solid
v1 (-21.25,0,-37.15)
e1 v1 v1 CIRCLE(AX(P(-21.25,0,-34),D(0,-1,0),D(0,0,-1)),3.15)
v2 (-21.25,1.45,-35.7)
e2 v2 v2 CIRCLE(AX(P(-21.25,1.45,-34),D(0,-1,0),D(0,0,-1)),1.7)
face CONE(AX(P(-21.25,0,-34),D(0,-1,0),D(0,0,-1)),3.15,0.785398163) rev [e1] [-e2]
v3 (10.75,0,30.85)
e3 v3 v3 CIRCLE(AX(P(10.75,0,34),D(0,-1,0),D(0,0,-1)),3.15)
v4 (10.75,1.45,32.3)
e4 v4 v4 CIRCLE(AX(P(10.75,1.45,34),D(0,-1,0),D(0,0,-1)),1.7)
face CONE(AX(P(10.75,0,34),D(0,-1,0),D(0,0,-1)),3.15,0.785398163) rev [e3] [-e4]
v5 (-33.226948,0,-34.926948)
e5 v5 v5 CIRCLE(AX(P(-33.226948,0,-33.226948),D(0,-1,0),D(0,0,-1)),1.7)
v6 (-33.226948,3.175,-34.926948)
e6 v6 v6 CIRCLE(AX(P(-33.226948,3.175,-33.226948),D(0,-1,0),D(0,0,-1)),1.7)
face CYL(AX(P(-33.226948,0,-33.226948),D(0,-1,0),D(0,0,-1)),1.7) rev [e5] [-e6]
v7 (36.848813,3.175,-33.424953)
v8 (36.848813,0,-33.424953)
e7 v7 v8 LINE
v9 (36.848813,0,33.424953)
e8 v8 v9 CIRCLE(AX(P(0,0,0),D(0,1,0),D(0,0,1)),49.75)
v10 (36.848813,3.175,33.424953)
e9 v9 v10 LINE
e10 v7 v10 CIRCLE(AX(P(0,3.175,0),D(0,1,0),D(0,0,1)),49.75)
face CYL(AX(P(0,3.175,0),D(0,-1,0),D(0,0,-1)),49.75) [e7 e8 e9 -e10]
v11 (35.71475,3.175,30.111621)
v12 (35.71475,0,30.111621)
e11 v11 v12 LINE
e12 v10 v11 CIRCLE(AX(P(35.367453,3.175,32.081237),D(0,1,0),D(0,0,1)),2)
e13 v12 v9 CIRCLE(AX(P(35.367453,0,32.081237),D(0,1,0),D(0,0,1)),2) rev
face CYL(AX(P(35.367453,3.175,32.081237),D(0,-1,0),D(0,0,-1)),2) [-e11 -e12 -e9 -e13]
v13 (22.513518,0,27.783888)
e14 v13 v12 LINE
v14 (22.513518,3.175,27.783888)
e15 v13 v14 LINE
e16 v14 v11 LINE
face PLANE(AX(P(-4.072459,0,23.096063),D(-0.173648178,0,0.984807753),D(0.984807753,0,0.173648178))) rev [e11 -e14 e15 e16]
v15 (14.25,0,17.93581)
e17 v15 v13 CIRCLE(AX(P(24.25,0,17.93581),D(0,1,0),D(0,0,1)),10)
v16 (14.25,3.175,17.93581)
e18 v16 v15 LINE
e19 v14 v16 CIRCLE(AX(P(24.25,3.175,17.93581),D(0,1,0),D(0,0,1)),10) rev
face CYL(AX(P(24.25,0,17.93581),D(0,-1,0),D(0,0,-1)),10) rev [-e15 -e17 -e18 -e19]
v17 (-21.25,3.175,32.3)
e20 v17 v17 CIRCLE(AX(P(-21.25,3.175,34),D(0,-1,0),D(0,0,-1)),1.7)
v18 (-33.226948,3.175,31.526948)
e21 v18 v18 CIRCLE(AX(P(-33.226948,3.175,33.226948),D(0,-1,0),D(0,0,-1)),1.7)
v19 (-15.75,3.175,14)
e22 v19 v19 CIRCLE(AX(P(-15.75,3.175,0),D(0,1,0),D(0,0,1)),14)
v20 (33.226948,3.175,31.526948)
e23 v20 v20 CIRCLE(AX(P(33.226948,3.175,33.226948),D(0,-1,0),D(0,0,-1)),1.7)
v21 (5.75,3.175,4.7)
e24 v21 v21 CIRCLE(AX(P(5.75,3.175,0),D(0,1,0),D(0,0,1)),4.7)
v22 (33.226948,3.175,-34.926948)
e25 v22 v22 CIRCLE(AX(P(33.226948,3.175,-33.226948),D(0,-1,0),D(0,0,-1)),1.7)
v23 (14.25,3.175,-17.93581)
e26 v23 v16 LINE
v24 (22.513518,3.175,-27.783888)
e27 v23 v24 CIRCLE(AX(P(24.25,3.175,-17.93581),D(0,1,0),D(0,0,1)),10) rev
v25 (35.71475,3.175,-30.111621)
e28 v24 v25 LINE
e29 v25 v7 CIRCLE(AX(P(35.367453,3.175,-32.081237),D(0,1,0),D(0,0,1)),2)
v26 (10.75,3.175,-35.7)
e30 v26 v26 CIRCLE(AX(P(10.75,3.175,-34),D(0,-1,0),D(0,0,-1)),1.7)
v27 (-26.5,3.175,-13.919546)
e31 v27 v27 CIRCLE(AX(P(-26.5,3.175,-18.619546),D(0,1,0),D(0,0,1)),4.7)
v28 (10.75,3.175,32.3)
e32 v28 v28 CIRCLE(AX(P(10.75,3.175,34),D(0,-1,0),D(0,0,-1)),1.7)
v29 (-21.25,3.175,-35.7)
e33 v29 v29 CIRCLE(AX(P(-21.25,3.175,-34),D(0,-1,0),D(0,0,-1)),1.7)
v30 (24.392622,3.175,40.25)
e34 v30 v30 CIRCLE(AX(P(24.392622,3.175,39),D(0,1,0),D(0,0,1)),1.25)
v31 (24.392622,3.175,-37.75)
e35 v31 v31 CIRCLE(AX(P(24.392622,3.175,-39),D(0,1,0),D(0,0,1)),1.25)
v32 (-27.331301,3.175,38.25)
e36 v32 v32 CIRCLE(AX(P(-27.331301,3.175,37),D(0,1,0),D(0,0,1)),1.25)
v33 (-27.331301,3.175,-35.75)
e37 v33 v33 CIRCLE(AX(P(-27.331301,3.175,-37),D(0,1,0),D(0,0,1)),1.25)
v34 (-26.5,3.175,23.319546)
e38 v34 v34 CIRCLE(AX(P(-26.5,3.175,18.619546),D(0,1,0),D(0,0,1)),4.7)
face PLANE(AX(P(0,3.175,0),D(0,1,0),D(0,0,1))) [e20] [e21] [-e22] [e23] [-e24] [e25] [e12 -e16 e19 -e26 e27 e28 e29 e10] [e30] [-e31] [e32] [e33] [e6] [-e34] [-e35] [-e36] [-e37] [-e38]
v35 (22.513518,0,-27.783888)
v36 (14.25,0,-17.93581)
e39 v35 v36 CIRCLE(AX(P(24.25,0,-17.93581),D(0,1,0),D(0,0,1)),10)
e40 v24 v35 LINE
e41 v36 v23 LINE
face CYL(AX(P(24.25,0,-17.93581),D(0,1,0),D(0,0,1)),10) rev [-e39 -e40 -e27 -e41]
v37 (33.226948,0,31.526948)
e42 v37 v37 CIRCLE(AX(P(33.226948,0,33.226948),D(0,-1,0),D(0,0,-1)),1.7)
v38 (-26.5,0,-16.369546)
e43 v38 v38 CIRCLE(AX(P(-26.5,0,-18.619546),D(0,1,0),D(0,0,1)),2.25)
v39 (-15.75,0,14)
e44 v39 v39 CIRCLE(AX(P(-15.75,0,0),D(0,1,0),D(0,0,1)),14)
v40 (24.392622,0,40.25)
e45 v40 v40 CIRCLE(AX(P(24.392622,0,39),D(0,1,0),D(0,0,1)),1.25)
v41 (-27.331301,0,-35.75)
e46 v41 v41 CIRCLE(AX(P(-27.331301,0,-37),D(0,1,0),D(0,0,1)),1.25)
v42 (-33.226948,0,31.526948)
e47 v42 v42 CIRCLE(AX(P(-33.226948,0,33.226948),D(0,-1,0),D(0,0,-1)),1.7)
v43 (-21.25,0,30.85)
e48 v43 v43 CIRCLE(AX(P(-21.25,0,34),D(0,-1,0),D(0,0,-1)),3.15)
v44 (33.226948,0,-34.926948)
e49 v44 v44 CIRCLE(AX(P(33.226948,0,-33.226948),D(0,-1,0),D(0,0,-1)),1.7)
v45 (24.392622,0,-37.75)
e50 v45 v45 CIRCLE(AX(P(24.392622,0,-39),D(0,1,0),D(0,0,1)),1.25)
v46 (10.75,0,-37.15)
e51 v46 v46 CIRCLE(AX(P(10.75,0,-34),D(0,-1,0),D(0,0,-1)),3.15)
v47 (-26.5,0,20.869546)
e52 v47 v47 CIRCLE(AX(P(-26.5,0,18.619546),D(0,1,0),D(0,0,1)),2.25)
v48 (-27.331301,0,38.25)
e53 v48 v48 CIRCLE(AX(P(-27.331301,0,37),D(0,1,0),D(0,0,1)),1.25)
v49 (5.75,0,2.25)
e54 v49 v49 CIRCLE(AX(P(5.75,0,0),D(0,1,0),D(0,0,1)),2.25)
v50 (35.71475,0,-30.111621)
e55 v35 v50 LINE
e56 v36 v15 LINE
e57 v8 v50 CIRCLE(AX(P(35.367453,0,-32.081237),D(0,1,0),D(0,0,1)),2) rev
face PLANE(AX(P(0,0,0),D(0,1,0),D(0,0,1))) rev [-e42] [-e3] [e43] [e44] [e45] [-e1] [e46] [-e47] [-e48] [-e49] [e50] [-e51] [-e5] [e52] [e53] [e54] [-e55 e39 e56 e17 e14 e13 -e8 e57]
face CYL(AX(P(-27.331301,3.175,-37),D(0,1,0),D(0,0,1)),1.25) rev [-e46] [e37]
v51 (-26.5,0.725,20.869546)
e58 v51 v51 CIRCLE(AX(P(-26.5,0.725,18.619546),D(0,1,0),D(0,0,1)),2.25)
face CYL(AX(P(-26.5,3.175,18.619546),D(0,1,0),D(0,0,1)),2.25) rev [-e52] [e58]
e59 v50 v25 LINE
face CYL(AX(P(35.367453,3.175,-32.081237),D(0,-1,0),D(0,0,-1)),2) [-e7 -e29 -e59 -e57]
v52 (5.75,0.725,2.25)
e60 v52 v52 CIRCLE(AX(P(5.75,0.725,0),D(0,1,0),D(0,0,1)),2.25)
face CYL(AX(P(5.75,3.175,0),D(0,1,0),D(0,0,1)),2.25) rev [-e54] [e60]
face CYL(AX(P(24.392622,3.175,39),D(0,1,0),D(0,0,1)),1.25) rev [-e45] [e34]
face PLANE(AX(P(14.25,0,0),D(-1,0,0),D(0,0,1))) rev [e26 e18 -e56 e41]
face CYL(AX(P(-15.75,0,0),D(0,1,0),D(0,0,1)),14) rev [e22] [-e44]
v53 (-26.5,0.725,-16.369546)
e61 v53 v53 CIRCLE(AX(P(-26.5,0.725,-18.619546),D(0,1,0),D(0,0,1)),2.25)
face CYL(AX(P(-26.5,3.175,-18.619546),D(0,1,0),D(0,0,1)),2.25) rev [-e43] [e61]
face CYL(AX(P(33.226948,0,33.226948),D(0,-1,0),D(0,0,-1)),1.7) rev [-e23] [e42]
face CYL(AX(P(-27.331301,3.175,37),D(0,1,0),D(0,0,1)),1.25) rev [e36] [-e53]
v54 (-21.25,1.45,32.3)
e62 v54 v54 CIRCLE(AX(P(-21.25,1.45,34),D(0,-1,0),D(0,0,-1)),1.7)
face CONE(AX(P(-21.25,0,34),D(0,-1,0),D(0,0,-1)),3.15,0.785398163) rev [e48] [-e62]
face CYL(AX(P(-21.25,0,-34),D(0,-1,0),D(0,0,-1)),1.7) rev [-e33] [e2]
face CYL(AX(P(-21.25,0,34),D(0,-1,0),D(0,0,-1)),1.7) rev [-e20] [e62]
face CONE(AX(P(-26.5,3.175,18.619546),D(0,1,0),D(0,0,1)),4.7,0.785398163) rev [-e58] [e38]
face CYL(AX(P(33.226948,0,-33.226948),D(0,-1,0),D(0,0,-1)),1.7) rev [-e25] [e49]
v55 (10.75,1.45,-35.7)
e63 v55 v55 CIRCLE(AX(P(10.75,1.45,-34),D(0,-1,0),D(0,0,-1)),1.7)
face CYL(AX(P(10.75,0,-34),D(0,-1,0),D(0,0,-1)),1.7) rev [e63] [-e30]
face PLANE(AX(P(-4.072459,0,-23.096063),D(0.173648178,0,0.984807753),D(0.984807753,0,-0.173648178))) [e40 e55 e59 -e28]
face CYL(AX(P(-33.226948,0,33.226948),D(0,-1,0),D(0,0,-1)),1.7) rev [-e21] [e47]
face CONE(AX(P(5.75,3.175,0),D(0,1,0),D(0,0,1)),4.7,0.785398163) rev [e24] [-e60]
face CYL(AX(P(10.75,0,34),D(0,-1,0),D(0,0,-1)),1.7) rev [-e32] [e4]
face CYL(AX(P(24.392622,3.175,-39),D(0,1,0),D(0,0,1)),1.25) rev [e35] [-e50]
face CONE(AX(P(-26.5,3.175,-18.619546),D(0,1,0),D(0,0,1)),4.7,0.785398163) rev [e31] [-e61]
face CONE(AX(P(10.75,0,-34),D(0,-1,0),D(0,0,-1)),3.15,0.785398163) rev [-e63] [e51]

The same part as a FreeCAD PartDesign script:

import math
import FreeCAD as App
import Part
import Sketcher
from FreeCAD import Vector
Q = App.Units.Quantity


def edges_at(feature, points):
    """Names of the edges that pass closest to the given points."""
    edges = feature.Shape.Edges
    near = lambda p: min(range(len(edges)), key=lambda i: edges[i].distToShape(Part.Vertex(*p))[0])
    return sorted({f"Edge{near(p) + 1}" for p in points})


def add_polygon(sketch, points):
    """Adds a closed chain of lines whose ends are joined by coincident constraints."""
    first, n = sketch.GeometryCount, len(points)
    for a, b in zip(points, points[1:] + points[:1]):
        sketch.addGeometry(Part.LineSegment(App.Vector(*a, 0), App.Vector(*b, 0)), False)
    for i in range(n):
        sketch.addConstraint(Sketcher.Constraint("Coincident", first + i, 2, first + (i + 1) % n, 1))

doc = App.newDocument("Part")
body = doc.addObject("PartDesign::Body", "Body")

# Sketch on XZ plane
sketch1 = body.newObject("Sketcher::SketchObject", "Sketch")
sketch1.AttachmentSupport = (doc.getObject("XZ_Plane"), [""])
sketch1.MapMode = "FlatFace"
sketch1.addGeometry(Part.Circle(Vector(0, 0, 0), Vector(0, 0, 1), 49.75), False)
sketch1.addConstraint([
    Sketcher.Constraint("Coincident", 0, 3, -1, 1),
    Sketcher.Constraint("Diameter", 0, 99.5),
])
pad1 = body.newObject("PartDesign::Pad", "Pad")
pad1.Profile = sketch1
pad1.Length = 3.175
pad1.Reversed = True

# Sketch on XZ plane
sketch2 = body.newObject("Sketcher::SketchObject", "Sketch001")
sketch2.AttachmentSupport = (doc.getObject("XZ_Plane"), [""])
sketch2.MapMode = "FlatFace"
sketch2.AttachmentOffset = App.Placement(Vector(0, 0, -3.175), App.Rotation())
sketch2.addGeometry([
    Part.LineSegment(Vector(14.25, -26.326807, 0), Vector(14.25, 26.326807, 0)),
    Part.LineSegment(Vector(14.25, 26.326807, 0), Vector(39.136361, 30.714944, 0)),
    Part.ArcOfCircle(Part.Circle(Vector(0, 0, 0), Vector(0, 0, 1), 49.75), math.radians(-38.125482), math.radians(38.125482)),
    Part.LineSegment(Vector(39.136361, -30.714944, 0), Vector(14.25, -26.326807, 0)),
], False)
sketch2.addConstraint([
    Sketcher.Constraint("Coincident", 0, 2, 1, 1),
    Sketcher.Constraint("Coincident", 1, 2, 2, 2),
    Sketcher.Constraint("Coincident", 2, 1, 3, 1),
    Sketcher.Constraint("Coincident", 3, 2, 0, 1),
    Sketcher.Constraint("Vertical", 0),
    Sketcher.Constraint("Coincident", 2, 3, -1, 1),
    Sketcher.Constraint("Vertical", 1, 2, 2, 1),
    Sketcher.Constraint("Equal", 1, 3),
    Sketcher.Constraint("Angle", 1, Q("10 deg")),
    Sketcher.Constraint("Radius", 2, 49.75),
    Sketcher.Constraint("DistanceX", -1, 1, 0, 2, 14.25),
    Sketcher.Constraint("DistanceY", 0, 1, 0, 2, 52.653613),
])
pocket1 = body.newObject("PartDesign::Pocket", "Pocket")
pocket1.Profile = sketch2
pocket1.Type = "ThroughAll"
pocket1.Reversed = True

# Sketch on XZ plane
sketch3 = body.newObject("Sketcher::SketchObject", "Sketch002")
sketch3.AttachmentSupport = (doc.getObject("XZ_Plane"), [""])
sketch3.MapMode = "FlatFace"
sketch3.AttachmentOffset = App.Placement(Vector(0, 0, -3.175), App.Rotation())
sketch3.addGeometry(Part.Circle(Vector(-15.75, 0, 0), Vector(0, 0, 1), 14), False)
sketch3.addConstraint([
    Sketcher.Constraint("PointOnObject", 0, 3, -1),
    Sketcher.Constraint("Diameter", 0, 28.0),
    Sketcher.Constraint("DistanceX", 0, 3, -1, 1, 15.75),
])
pocket2 = body.newObject("PartDesign::Pocket", "Pocket001")
pocket2.Profile = sketch3
pocket2.Type = "ThroughAll"
pocket2.Reversed = True

# Sketch on YZ plane
sketch4 = body.newObject("Sketcher::SketchObject", "Sketch003")
sketch4.AttachmentSupport = (doc.getObject("YZ_Plane"), [""])
sketch4.MapMode = "FlatFace"
sketch4.AttachmentOffset = App.Placement(Vector(0, 0, 5.75), App.Rotation())
add_polygon(sketch4, [(0, 0), (3.175, 0), (3.175, 4.7), (0.725, 2.25), (0, 2.25)])  # lines 0-4
sketch4.addConstraint([
    Sketcher.Constraint("Horizontal", 0),
    Sketcher.Constraint("Vertical", 1),
    Sketcher.Constraint("Horizontal", 3),
    Sketcher.Constraint("Vertical", 4),
    Sketcher.Constraint("Coincident", 4, 2, -1, 1),
    Sketcher.Constraint("Angle", 2, Q("-135 deg")),
    Sketcher.Constraint("DistanceY", 1, 1, 1, 2, 4.7),
    Sketcher.Constraint("DistanceY", 4, 2, 4, 1, 2.25),
    Sketcher.Constraint("DistanceX", 0, 1, 0, 2, 3.175),
])
groove = body.newObject("PartDesign::Groove", "Groove")
groove.Profile = sketch4
groove.ReferenceAxis = (sketch4, ["H_Axis"])
groove.Angle = 360
doc.recompute()

datumline = body.newObject("PartDesign::Line", "DatumLine")
datumline.Placement = App.Placement(Vector(-15.75, 0, 0), App.Rotation(Vector(0, 0, 1), Vector(0, 1, 0)))
polarpattern = body.newObject("PartDesign::PolarPattern", "PolarPattern")
polarpattern.Originals = [groove]
polarpattern.Axis = (datumline, [""])
polarpattern.Angle = 360
polarpattern.Occurrences = 3
body.Tip = polarpattern

# Sketch on XZ plane
sketch5 = body.newObject("Sketcher::SketchObject", "Sketch004")
sketch5.AttachmentSupport = (doc.getObject("XZ_Plane"), [""])
sketch5.MapMode = "FlatFace"
sketch5.addGeometry(Part.Circle(Vector(33.226948, -33.226948, 0), Vector(0, 0, 1), 1.7), False)
sketch5.addConstraint([
    Sketcher.Constraint("Diameter", 0, 3.4),
    Sketcher.Constraint("DistanceX", -1, 1, 0, 3, 33.226948),
    Sketcher.Constraint("DistanceY", 0, 3, -1, 1, 33.226948),
])
doc.recompute()
hole = body.newObject("PartDesign::Hole", "Hole")
hole.Profile = sketch5
hole.ThreadType = "None"
hole.Diameter = 3.4
hole.DepthType = "ThroughAll"
doc.recompute()

polarpattern2 = body.newObject("PartDesign::PolarPattern", "PolarPattern001")
polarpattern2.Originals = [hole]
polarpattern2.Axis = (doc.getObject("Y_Axis"), [""])
polarpattern2.Angle = 360
polarpattern2.Occurrences = 4
body.Tip = polarpattern2

# Sketch on XZ plane
sketch6 = body.newObject("Sketcher::SketchObject", "Sketch005")
sketch6.AttachmentSupport = (doc.getObject("XZ_Plane"), [""])
sketch6.MapMode = "FlatFace"
sketch6.addGeometry([
    Part.Circle(Vector(-21.25, 34, 0), Vector(0, 0, 1), 1.7),
    Part.Circle(Vector(10.75, 34, 0), Vector(0, 0, 1), 1.7),
    Part.Circle(Vector(10.75, -34, 0), Vector(0, 0, 1), 1.7),
    Part.Circle(Vector(-21.25, -34, 0), Vector(0, 0, 1), 1.7),
], False)
sketch6.addConstraint([
    Sketcher.Constraint("Equal", 0, 1),
    Sketcher.Constraint("Equal", 1, 2),
    Sketcher.Constraint("Equal", 2, 3),
    Sketcher.Constraint("Symmetric", 1, 3, 2, 3, -1),
    Sketcher.Constraint("Symmetric", 0, 3, 3, 3, -1),
    Sketcher.Constraint("Horizontal", 0, 3, 1, 3),
    Sketcher.Constraint("Diameter", 0, 3.4),
    Sketcher.Constraint("DistanceY", -1, 1, 0, 3, 34.0),
    Sketcher.Constraint("DistanceX", 0, 3, 1, 3, 32.0),
    Sketcher.Constraint("DistanceX", 0, 3, -1, 1, 21.25),
])
doc.recompute()
hole2 = body.newObject("PartDesign::Hole", "Hole001")
hole2.Profile = sketch6
hole2.ThreadType = "None"
hole2.Diameter = 3.4
hole2.DepthType = "ThroughAll"
hole2.HoleCutType = "Countersink"
hole2.HoleCutDiameter = 6.3
hole2.HoleCutCountersinkAngle = 90
doc.recompute()

fillet = body.newObject("PartDesign::Fillet", "Fillet")
fillet.Base = (hole2, edges_at(hole2, [(39.136, 1.587, -30.715), (39.136, 1.587, 30.715)]))
fillet.Radius = 2
doc.recompute()

fillet2 = body.newObject("PartDesign::Fillet", "Fillet001")
fillet2.Base = (fillet, edges_at(fillet, [(14.25, 1.587, 26.327), (14.25, 1.587, -26.327)]))
fillet2.Radius = 10

# Sketch on XZ plane
sketch7 = body.newObject("Sketcher::SketchObject", "Sketch006")
sketch7.AttachmentSupport = (doc.getObject("XZ_Plane"), [""])
sketch7.MapMode = "FlatFace"
sketch7.AttachmentOffset = App.Placement(Vector(0, 0, -3.175), App.Rotation())
sketch7.addGeometry([
    Part.Circle(Vector(-27.331301, 37, 0), Vector(0, 0, 1), 1.25),
    Part.Circle(Vector(24.392622, 39, 0), Vector(0, 0, 1), 1.25),
    Part.Circle(Vector(24.392622, -39, 0), Vector(0, 0, 1), 1.25),
    Part.Circle(Vector(-27.331301, -37, 0), Vector(0, 0, 1), 1.25),
], False)
sketch7.addConstraint([
    Sketcher.Constraint("Equal", 0, 1),
    Sketcher.Constraint("Equal", 1, 2),
    Sketcher.Constraint("Equal", 2, 3),
    Sketcher.Constraint("Symmetric", 1, 3, 2, 3, -1),
    Sketcher.Constraint("Symmetric", 0, 3, 3, 3, -1),
    Sketcher.Constraint("Diameter", 0, 2.5),
    Sketcher.Constraint("DistanceY", -1, 1, 0, 3, 37.0),
    Sketcher.Constraint("DistanceY", -1, 1, 1, 3, 39.0),
    Sketcher.Constraint("DistanceX", 0, 3, -1, 1, 27.331301),
    Sketcher.Constraint("DistanceX", -1, 1, 1, 3, 24.392622),
])
doc.recompute()
hole3 = body.newObject("PartDesign::Hole", "Hole002")
hole3.Profile = sketch7
hole3.ThreadType = "None"
hole3.Diameter = 2.5
hole3.DepthType = "ThroughAll"
hole3.Reversed = True

doc.recompute()
